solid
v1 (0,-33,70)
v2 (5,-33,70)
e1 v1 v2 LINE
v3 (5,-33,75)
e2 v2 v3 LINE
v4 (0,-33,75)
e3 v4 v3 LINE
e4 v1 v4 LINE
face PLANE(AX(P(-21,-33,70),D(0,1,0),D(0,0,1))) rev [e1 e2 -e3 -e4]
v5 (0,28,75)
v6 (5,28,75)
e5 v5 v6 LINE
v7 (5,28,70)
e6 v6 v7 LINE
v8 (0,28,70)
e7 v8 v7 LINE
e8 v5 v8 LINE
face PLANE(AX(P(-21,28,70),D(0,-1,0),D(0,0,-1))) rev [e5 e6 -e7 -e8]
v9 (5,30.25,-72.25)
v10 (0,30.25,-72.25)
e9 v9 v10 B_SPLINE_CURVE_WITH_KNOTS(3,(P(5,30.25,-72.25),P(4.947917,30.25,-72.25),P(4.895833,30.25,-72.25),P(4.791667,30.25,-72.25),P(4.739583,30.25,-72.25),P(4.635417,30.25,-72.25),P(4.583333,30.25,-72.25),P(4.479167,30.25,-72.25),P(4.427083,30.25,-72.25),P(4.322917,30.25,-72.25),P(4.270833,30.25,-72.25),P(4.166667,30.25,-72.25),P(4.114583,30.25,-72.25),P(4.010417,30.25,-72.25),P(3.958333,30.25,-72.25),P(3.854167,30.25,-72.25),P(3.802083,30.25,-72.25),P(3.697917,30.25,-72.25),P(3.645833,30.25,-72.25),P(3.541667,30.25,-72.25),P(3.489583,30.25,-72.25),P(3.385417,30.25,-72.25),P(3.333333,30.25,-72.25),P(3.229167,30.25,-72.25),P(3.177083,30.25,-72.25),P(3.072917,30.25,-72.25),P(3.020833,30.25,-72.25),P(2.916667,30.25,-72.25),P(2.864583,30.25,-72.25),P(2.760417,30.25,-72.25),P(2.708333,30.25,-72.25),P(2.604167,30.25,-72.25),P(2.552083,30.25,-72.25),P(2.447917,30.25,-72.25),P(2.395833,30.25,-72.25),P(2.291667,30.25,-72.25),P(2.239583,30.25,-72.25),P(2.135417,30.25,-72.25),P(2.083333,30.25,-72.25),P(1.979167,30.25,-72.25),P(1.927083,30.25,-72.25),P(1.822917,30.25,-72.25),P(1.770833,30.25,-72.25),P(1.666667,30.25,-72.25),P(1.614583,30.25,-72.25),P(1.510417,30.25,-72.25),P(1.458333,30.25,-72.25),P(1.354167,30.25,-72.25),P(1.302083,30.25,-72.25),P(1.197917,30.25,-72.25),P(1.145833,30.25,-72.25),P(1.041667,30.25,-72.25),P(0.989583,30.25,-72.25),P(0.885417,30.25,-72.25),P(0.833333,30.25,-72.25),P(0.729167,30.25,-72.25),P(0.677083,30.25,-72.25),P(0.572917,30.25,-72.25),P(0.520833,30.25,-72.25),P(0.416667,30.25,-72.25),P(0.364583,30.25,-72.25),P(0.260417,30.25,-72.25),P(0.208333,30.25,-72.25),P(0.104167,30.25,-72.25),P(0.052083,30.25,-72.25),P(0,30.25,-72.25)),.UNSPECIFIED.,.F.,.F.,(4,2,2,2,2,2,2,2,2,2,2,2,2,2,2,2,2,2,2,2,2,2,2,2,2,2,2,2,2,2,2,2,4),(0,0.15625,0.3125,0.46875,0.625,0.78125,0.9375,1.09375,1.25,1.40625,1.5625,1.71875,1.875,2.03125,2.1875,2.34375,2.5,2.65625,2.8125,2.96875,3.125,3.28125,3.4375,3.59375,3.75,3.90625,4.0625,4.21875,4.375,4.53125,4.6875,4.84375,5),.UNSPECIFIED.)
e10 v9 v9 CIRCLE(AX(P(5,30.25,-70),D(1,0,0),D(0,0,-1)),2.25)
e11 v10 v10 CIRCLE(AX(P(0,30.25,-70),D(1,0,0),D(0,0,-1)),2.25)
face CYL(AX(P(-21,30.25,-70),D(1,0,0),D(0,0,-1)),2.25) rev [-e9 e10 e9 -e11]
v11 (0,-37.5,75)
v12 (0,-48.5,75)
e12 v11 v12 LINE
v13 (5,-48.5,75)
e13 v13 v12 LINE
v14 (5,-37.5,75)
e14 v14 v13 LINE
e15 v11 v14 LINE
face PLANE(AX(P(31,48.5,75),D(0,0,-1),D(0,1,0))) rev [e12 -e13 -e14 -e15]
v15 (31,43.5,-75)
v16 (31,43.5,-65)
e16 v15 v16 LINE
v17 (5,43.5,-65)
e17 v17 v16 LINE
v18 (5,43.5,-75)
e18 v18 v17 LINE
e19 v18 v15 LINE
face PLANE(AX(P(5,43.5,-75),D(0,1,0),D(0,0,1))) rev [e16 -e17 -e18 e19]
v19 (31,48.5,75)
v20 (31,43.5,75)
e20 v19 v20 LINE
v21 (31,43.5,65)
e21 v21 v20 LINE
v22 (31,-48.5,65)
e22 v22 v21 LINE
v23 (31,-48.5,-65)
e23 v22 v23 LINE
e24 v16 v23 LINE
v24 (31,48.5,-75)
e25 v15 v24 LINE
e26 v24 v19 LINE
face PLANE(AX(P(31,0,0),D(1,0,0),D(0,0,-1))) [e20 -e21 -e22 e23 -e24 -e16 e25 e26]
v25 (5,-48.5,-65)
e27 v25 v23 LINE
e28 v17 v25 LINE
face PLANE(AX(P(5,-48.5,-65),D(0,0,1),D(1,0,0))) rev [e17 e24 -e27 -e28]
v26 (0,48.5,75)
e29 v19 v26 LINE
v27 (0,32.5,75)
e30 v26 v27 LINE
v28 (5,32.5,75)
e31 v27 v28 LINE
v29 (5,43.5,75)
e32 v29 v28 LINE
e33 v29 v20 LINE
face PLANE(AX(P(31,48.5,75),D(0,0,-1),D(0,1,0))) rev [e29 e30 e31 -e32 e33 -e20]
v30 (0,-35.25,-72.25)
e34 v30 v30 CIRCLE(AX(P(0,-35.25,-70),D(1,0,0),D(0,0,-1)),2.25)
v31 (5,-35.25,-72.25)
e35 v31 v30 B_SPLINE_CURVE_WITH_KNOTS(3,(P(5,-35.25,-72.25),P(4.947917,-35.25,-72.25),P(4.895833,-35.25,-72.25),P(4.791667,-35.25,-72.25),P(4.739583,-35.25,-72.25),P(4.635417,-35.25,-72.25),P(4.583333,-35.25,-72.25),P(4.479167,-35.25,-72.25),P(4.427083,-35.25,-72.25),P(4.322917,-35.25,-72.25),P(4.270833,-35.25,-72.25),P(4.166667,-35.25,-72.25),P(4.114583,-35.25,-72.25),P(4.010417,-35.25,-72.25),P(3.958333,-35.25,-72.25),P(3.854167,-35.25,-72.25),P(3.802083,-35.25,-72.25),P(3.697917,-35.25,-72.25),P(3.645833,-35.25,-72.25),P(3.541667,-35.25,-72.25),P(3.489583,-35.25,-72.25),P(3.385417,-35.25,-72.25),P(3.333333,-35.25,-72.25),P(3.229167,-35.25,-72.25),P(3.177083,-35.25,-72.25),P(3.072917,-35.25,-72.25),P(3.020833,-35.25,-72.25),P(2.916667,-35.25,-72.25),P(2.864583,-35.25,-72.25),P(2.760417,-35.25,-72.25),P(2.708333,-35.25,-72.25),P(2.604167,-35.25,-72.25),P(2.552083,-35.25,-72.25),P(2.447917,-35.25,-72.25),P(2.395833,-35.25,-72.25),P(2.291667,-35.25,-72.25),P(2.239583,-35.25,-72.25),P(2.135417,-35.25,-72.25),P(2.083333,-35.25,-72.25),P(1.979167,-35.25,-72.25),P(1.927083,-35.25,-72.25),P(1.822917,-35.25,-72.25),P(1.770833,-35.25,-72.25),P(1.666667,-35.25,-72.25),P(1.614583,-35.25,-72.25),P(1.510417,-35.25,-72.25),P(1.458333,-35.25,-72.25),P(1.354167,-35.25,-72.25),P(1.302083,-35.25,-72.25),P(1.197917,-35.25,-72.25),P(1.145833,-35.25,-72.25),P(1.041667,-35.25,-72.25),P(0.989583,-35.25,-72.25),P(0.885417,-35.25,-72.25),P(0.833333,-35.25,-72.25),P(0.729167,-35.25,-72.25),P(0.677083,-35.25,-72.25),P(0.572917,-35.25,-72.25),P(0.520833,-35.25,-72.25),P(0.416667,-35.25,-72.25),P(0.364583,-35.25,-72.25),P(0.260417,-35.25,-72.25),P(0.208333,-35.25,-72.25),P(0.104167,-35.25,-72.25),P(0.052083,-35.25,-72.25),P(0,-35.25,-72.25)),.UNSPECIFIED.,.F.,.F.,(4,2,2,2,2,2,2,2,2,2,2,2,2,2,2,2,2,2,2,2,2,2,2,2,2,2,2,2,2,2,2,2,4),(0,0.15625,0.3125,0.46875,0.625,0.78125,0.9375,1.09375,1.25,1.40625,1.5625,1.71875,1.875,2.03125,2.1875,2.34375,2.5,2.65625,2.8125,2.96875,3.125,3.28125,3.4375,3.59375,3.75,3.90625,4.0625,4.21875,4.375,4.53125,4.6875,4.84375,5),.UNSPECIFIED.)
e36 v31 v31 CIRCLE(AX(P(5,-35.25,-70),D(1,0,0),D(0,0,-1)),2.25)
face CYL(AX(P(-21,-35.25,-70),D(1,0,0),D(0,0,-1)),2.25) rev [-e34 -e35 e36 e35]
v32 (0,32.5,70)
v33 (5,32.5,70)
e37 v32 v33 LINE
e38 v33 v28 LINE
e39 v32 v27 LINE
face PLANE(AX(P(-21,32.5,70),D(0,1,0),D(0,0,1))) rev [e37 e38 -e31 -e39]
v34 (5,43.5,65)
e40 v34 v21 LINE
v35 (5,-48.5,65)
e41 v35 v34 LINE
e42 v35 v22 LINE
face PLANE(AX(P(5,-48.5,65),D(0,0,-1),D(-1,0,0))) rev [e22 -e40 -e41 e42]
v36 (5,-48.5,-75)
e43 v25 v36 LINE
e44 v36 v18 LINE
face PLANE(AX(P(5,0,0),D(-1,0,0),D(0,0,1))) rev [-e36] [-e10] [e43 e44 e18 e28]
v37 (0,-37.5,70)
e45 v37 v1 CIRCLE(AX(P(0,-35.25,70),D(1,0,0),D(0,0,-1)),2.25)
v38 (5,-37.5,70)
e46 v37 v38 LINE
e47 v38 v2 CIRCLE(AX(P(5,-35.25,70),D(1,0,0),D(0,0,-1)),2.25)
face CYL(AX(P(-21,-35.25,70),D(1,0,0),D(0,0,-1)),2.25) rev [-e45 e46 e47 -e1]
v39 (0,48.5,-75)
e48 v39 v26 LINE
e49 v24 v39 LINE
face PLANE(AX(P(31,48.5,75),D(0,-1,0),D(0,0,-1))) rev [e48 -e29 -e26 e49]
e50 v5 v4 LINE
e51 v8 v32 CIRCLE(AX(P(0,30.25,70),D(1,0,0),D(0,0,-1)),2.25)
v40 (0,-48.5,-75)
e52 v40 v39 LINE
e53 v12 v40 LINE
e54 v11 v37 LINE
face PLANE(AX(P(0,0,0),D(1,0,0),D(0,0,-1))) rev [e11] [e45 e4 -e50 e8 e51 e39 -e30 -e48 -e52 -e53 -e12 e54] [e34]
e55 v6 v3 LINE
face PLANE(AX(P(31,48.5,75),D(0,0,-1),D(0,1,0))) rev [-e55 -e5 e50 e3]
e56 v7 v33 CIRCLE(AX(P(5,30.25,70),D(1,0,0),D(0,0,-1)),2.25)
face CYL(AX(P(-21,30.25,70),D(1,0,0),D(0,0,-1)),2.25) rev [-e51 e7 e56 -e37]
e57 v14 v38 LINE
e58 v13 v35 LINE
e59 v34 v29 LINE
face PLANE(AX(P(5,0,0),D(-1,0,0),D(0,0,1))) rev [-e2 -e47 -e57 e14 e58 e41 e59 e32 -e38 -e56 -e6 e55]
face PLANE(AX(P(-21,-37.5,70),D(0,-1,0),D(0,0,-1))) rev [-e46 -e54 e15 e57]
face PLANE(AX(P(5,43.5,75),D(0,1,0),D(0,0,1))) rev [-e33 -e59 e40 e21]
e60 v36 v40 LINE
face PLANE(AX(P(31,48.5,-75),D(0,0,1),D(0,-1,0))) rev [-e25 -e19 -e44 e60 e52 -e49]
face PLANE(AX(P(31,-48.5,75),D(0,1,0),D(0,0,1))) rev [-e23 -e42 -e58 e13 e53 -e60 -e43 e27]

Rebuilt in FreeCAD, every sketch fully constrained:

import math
import FreeCAD as App
import Part
import Sketcher
from FreeCAD import Vector

doc = App.newDocument("Part")
body = doc.addObject("PartDesign::Body", "Body")

# Sketch on YZ plane
sketch1 = body.newObject("Sketcher::SketchObject", "Sketch")
sketch1.AttachmentSupport = (doc.getObject("YZ_Plane"), [""])
sketch1.MapMode = "FlatFace"
sketch1.addGeometry([
    Part.LineSegment(Vector(48, 75, 0), Vector(-48, 75, 0)),
    Part.LineSegment(Vector(-48, 75, 0), Vector(-48, -75, 0)),
    Part.LineSegment(Vector(-48, -75, 0), Vector(48, -75, 0)),
    Part.LineSegment(Vector(48, -75, 0), Vector(48, 75, 0)),
], False)
sketch1.addConstraint([
    Sketcher.Constraint("Coincident", 0, 2, 1, 1),
    Sketcher.Constraint("Coincident", 1, 2, 2, 1),
    Sketcher.Constraint("Coincident", 2, 2, 3, 1),
    Sketcher.Constraint("Coincident", 3, 2, 0, 1),
    Sketcher.Constraint("Horizontal", 0),
    Sketcher.Constraint("Vertical", 1),
    Sketcher.Constraint("Horizontal", 2),
    Sketcher.Constraint("Vertical", 3),
    Sketcher.Constraint("Symmetric", 0, 2, 2, 2, -1, 1),
    Sketcher.Constraint("DistanceX", 0, 2, 0, 1, 97.0),
    Sketcher.Constraint("DistanceY", 1, 2, 1, 1, 150.0),
])
pad1 = body.newObject("PartDesign::Pad", "Pad")
pad1.Profile = sketch1
pad1.Length = 31

# Sketch on YZ plane
sketch2 = body.newObject("Sketcher::SketchObject", "Sketch001")
sketch2.AttachmentSupport = (doc.getObject("YZ_Plane"), [""])
sketch2.MapMode = "FlatFace"
sketch2.AttachmentOffset = App.Placement(Vector(0, 0, 31), App.Rotation())
sketch2.addGeometry([
    Part.LineSegment(Vector(44, 75, 0), Vector(-48, 75, 0)),  # 0
    Part.LineSegment(Vector(-48, 75, 0), Vector(-48, 65, 0)),  # 1
    Part.LineSegment(Vector(-48, 65, 0), Vector(44, 65, 0)),  # 2
    Part.LineSegment(Vector(44, 65, 0), Vector(44, 75, 0)),  # 3
    Part.LineSegment(Vector(44, -65, 0), Vector(-48, -65, 0)),  # 4
    Part.LineSegment(Vector(-48, -65, 0), Vector(-48, -75, 0)),  # 5
    Part.LineSegment(Vector(-48, -75, 0), Vector(44, -75, 0)),  # 6
    Part.LineSegment(Vector(44, -75, 0), Vector(44, -65, 0)),  # 7
], False)
sketch2.addConstraint([
    Sketcher.Constraint("Coincident", 0, 2, 1, 1),
    Sketcher.Constraint("Coincident", 1, 2, 2, 1),
    Sketcher.Constraint("Coincident", 2, 2, 3, 1),
    Sketcher.Constraint("Coincident", 3, 2, 0, 1),
    Sketcher.Constraint("Coincident", 4, 2, 5, 1),
    Sketcher.Constraint("Coincident", 5, 2, 6, 1),
    Sketcher.Constraint("Coincident", 6, 2, 7, 1),
    Sketcher.Constraint("Coincident", 7, 2, 4, 1),
    Sketcher.Constraint("Horizontal", 0),
    Sketcher.Constraint("Vertical", 1),
    Sketcher.Constraint("Horizontal", 2),
    Sketcher.Constraint("Vertical", 3),
    Sketcher.Constraint("Horizontal", 4),
    Sketcher.Constraint("Vertical", 5),
    Sketcher.Constraint("Horizontal", 6),
    Sketcher.Constraint("Vertical", 7),
    Sketcher.Constraint("Symmetric", 1, 2, 4, 2, -1),
    Sketcher.Constraint("Symmetric", 3, 2, 6, 2, -1),
    Sketcher.Constraint("DistanceX", 0, 2, 0, 1, 92.0),
    Sketcher.Constraint("DistanceY", 1, 2, 1, 1, 10.0),
    Sketcher.Constraint("DistanceY", -1, 1, 0, 2, 75.0),
    Sketcher.Constraint("DistanceX", 0, 2, -1, 1, 48.5),
])
pocket1 = body.newObject("PartDesign::Pocket", "Pocket")
pocket1.Profile = sketch2
pocket1.Length = 26

# Sketch on YZ plane
sketch3 = body.newObject("Sketcher::SketchObject", "Sketch002")
sketch3.AttachmentSupport = (doc.getObject("YZ_Plane"), [""])
sketch3.MapMode = "FlatFace"
sketch3.AttachmentOffset = App.Placement(Vector(0, 0, 5), App.Rotation())
sketch3.addGeometry([
    Part.Circle(Vector(30.2, -70, 0), Vector(0, 0, 1), 2.2),  # 0
    Part.Circle(Vector(-35.2, -70, 0), Vector(0, 0, 1), 2.2),  # 1
    Part.LineSegment(Vector(32.5, 70, 0), Vector(32.5, 75, 0)),  # 2
    Part.LineSegment(Vector(32.5, 75, 0), Vector(28, 75, 0)),  # 3
    Part.LineSegment(Vector(28, 75, 0), Vector(28, 70, 0)),  # 4
    Part.ArcOfCircle(Part.Circle(Vector(30.2, 70, 0), Vector(0, 0, 1), 2.2), math.radians(180), math.radians(360)),  # 5
    Part.LineSegment(Vector(-33, 70, 0), Vector(-33, 75, 0)),  # 6
    Part.LineSegment(Vector(-33, 75, 0), Vector(-37.5, 75, 0)),  # 7
    Part.LineSegment(Vector(-37.5, 75, 0), Vector(-37.5, 70, 0)),  # 8
    Part.ArcOfCircle(Part.Circle(Vector(-35.2, 70, 0), Vector(0, 0, 1), 2.2), math.radians(180), math.radians(360)),  # 9
], False)
sketch3.addConstraint([
    Sketcher.Constraint("Coincident", 2, 2, 3, 1),
    Sketcher.Constraint("Coincident", 3, 2, 4, 1),
    Sketcher.Constraint("Tangent", 4, 2, 5, 1),
    Sketcher.Constraint("Tangent", 5, 2, 2, 1),
    Sketcher.Constraint("Coincident", 6, 2, 7, 1),
    Sketcher.Constraint("Coincident", 7, 2, 8, 1),
    Sketcher.Constraint("Tangent", 8, 2, 9, 1),
    Sketcher.Constraint("Tangent", 9, 2, 6, 1),
    Sketcher.Constraint("Vertical", 2),
    Sketcher.Constraint("Horizontal", 3),
    Sketcher.Constraint("Vertical", 4),
    Sketcher.Constraint("Vertical", 6),
    Sketcher.Constraint("Horizontal", 7),
    Sketcher.Constraint("Vertical", 8),
    Sketcher.Constraint("Equal", 0, 1),
    Sketcher.Constraint("Equal", 1, 5),
    Sketcher.Constraint("Equal", 5, 9),
    Sketcher.Constraint("Symmetric", 0, 3, 5, 3, -1),
    Sketcher.Constraint("Symmetric", 1, 3, 9, 3, -1),
    Sketcher.Constraint("Horizontal", 0, 3, 1, 3),
    Sketcher.Constraint("Horizontal", 3, 2, 6, 2),
    Sketcher.Constraint("Diameter", 0, 4.5),
    Sketcher.Constraint("DistanceY", 2, 1, 2, 2, 5.0),
    Sketcher.Constraint("DistanceY", 0, 3, -1, 1, 70.0),
    Sketcher.Constraint("DistanceX", -1, 1, 3, 2, 28.0),
    Sketcher.Constraint("DistanceX", 6, 2, -1, 1, 33.0),
])
pocket2 = body.newObject("PartDesign::Pocket", "Pocket001")
pocket2.Profile = sketch3
pocket2.Length = 26

doc.recompute()
